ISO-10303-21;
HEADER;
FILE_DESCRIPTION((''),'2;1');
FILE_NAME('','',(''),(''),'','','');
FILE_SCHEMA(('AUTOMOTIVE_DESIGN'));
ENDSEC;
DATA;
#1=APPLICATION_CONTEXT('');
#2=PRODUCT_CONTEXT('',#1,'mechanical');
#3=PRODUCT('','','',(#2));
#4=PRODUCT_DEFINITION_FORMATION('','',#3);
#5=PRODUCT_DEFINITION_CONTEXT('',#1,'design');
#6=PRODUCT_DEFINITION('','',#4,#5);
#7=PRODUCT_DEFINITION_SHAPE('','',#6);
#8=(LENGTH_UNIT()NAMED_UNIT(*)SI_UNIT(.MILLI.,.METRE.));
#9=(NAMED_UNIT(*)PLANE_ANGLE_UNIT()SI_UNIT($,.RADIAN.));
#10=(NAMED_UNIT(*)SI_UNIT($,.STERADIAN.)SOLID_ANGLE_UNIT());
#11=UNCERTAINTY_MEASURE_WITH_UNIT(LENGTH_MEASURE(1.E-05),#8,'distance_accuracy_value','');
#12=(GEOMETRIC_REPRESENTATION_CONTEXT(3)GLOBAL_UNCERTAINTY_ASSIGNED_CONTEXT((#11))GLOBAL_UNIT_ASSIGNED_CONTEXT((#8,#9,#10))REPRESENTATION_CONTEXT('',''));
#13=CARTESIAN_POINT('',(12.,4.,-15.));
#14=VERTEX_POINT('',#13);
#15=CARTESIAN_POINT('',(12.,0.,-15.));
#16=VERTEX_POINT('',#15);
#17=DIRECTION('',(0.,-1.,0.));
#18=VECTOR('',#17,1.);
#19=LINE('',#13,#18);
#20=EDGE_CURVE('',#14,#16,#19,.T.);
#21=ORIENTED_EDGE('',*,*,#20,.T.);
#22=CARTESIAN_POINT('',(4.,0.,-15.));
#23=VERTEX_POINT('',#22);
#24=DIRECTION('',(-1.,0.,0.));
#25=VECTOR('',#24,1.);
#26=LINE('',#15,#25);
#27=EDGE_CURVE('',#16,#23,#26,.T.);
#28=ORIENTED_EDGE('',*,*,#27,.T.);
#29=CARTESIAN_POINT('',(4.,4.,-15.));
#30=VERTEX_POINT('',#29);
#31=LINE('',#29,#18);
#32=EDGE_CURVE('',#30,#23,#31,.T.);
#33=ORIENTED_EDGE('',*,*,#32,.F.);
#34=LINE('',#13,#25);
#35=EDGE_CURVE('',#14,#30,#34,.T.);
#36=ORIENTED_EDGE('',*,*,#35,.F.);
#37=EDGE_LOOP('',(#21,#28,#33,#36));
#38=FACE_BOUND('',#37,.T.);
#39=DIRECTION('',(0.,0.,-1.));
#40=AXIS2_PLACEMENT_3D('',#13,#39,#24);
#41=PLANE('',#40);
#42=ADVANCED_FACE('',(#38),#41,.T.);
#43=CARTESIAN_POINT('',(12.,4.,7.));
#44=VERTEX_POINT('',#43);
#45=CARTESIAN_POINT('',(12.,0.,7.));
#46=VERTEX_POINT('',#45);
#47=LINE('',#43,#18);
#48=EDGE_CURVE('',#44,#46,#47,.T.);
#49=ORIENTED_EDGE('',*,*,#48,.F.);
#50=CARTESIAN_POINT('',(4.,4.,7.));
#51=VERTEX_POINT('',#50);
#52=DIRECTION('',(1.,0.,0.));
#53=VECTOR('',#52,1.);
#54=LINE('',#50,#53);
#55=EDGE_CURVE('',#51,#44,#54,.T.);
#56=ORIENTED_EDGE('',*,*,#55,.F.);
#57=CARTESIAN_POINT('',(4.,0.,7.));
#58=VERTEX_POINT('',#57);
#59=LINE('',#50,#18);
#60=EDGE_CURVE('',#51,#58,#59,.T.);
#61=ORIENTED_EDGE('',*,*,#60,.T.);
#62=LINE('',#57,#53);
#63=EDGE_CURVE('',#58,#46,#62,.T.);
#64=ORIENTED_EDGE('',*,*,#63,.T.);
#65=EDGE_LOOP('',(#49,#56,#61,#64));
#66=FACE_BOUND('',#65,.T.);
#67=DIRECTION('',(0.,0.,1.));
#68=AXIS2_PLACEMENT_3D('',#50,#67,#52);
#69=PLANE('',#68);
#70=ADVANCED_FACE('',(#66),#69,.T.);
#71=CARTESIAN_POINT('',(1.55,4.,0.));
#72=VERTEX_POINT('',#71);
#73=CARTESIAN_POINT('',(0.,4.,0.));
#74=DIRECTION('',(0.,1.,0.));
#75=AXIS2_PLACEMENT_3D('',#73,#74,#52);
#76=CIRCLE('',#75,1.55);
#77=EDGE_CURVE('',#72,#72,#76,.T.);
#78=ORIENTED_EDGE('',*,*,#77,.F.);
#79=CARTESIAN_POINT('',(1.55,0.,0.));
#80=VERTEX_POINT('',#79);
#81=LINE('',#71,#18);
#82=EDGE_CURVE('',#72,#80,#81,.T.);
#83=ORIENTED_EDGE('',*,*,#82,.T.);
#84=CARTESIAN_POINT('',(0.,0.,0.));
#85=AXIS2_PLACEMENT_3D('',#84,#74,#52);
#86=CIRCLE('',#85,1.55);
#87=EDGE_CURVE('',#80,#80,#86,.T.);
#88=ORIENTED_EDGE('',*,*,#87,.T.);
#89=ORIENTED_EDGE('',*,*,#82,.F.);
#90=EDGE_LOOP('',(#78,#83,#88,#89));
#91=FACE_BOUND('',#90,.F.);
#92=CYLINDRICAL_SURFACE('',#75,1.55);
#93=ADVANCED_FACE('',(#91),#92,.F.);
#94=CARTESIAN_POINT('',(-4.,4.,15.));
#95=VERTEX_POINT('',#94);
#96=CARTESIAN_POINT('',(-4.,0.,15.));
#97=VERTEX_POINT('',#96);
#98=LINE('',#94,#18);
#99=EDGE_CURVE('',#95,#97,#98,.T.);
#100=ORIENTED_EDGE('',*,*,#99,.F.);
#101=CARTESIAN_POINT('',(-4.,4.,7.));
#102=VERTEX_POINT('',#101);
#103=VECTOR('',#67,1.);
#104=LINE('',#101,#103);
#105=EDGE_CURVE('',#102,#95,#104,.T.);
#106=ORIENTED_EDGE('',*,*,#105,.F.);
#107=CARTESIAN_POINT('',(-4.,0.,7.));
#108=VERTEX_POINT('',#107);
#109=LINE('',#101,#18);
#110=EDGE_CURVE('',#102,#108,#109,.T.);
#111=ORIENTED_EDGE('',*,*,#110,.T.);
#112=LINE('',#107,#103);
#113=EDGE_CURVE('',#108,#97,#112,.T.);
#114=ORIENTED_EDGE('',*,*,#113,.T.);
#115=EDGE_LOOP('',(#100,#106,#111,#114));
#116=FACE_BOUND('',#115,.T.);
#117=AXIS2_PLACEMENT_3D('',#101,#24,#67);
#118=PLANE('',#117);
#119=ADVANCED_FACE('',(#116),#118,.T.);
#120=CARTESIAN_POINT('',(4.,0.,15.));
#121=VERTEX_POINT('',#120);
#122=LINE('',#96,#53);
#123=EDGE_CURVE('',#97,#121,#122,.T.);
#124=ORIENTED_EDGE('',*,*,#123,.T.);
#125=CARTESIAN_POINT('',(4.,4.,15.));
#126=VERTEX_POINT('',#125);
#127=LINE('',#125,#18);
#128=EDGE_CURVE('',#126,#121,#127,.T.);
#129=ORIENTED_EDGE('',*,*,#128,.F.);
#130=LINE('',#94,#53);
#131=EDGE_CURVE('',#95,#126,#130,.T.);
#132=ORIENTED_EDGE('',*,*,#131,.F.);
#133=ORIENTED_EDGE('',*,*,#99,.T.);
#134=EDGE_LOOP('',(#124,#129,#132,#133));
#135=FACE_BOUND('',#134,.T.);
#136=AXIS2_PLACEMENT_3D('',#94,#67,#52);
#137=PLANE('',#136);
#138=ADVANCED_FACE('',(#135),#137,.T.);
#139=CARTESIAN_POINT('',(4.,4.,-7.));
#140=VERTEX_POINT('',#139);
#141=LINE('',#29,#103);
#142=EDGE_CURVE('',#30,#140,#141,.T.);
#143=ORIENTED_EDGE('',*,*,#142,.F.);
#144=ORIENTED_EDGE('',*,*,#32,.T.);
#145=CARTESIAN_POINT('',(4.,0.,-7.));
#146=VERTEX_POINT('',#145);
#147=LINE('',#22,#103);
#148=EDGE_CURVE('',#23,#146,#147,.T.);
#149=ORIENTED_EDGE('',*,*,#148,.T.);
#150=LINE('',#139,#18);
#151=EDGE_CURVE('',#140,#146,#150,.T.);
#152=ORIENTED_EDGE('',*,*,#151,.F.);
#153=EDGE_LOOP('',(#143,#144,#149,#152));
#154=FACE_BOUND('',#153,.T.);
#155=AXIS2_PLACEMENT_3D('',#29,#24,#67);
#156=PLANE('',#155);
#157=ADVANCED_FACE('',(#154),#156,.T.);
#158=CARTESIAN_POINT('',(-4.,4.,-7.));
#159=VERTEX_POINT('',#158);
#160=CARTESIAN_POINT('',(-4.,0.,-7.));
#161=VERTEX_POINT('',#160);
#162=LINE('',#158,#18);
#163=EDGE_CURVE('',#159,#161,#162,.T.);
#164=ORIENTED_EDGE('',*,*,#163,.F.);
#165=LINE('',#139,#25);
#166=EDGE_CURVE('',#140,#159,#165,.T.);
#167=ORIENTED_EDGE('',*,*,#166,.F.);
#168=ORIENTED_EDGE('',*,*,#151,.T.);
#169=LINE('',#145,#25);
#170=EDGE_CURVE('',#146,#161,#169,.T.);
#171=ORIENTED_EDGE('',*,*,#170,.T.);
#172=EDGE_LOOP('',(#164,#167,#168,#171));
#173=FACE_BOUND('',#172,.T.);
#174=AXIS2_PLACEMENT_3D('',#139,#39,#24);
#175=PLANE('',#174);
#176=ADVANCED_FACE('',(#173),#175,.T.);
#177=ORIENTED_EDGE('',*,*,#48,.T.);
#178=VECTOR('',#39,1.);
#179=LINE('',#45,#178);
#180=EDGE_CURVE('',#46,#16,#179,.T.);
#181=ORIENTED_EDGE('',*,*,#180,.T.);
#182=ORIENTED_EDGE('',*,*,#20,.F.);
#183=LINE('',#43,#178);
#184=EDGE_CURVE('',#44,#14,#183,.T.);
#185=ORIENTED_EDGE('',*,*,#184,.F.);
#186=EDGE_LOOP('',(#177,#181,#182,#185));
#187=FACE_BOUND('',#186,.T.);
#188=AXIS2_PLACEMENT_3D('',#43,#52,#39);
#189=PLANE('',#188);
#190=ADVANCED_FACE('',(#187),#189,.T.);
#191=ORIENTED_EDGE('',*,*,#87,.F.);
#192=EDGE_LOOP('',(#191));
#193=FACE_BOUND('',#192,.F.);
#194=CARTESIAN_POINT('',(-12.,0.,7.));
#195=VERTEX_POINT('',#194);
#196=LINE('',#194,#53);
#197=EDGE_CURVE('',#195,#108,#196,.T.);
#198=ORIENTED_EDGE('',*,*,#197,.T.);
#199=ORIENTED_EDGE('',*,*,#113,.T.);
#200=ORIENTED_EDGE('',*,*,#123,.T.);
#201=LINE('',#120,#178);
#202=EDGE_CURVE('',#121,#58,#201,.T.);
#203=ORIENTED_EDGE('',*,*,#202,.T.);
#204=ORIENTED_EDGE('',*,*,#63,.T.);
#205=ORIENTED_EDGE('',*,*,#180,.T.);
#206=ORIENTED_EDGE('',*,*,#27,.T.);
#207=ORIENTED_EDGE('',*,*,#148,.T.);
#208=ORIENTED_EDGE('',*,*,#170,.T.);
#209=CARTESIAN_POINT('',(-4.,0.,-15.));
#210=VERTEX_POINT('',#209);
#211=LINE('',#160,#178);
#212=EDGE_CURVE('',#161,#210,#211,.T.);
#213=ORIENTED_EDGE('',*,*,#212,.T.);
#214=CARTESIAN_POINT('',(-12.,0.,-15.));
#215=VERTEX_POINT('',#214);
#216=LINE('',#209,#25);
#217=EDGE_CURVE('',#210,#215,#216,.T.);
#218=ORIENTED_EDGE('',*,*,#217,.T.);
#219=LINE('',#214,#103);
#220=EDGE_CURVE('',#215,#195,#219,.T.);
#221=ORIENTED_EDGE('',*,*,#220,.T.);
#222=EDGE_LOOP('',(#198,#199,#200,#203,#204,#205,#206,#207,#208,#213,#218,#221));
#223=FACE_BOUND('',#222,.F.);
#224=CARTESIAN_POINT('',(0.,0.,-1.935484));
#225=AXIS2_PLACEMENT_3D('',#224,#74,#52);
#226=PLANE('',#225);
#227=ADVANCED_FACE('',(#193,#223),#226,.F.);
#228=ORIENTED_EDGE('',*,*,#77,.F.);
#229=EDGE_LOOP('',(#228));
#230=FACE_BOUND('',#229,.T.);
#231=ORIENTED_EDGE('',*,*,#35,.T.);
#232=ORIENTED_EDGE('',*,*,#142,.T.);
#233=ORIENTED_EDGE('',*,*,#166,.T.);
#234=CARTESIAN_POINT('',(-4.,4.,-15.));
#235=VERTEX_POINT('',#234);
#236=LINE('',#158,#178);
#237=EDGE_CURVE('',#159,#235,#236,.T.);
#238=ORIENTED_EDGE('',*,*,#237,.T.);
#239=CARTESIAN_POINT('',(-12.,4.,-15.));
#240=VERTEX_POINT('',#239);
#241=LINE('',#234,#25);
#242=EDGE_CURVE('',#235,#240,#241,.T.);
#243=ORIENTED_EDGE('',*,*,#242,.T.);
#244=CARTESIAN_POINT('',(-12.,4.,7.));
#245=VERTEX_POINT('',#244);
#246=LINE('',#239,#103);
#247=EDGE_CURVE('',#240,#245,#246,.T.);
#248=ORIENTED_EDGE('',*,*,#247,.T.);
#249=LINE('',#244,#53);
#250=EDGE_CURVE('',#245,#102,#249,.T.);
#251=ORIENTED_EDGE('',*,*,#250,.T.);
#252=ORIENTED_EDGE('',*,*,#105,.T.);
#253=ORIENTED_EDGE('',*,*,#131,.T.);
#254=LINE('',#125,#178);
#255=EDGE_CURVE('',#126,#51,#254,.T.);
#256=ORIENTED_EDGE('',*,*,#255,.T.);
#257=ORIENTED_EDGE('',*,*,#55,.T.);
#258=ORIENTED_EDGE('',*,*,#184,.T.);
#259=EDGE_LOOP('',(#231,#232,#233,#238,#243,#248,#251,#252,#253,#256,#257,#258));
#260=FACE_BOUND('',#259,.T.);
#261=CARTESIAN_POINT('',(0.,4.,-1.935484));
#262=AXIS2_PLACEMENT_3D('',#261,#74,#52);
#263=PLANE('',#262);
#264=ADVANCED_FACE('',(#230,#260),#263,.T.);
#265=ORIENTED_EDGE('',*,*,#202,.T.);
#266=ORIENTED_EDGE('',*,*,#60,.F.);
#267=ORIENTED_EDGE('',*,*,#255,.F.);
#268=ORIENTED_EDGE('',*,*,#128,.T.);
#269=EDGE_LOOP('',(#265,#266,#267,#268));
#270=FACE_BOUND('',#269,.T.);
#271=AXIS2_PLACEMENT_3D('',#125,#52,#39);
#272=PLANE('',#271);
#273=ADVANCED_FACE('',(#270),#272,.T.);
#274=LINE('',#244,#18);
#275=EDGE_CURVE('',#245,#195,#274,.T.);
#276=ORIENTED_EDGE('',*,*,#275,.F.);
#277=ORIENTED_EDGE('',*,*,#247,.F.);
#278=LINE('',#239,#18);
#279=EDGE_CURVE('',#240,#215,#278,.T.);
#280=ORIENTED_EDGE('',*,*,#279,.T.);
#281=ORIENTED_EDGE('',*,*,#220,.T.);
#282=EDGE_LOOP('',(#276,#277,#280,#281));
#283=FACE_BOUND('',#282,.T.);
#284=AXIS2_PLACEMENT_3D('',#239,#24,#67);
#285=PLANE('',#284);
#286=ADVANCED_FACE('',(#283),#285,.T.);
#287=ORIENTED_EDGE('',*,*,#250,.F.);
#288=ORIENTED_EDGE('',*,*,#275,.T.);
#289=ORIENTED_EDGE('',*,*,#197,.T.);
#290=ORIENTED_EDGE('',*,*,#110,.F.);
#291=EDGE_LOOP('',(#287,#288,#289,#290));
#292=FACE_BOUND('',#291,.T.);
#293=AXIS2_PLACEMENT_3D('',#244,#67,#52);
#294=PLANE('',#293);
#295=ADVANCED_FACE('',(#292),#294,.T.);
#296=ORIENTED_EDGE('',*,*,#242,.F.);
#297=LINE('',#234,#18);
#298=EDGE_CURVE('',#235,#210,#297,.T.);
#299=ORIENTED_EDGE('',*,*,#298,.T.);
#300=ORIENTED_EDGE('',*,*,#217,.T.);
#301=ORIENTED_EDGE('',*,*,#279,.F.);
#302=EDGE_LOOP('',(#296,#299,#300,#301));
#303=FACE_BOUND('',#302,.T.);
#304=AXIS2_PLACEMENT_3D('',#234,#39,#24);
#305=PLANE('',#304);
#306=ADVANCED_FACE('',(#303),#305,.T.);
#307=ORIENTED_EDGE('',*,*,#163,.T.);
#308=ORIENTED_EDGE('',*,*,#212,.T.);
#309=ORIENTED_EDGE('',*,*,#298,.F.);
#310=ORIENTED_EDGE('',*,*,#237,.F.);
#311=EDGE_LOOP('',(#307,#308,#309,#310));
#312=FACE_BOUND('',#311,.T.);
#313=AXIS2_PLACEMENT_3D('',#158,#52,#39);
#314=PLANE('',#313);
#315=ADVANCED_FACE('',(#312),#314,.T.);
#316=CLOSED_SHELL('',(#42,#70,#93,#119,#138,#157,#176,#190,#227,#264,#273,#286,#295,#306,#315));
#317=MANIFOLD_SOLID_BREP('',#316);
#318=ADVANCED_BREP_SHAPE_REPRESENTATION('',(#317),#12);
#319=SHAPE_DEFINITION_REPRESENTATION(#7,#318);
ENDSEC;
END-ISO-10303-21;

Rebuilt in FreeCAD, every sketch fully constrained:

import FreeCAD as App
import Part
import Sketcher
Q = App.Units.Quantity

doc = App.newDocument("Part")
body = doc.addObject("PartDesign::Body", "Body")

sketch1 = body.newObject("Sketcher::SketchObject", "Sketch")
sketch1.AttachmentSupport = (doc.getObject("XZ_Plane"), [""])
sketch1.MapMode = "FlatFace"
sketch1.AttachmentOffset = App.Placement(App.Vector(0, 0, -4), App.Rotation())
sketch1.addGeometry([
    Part.LineSegment(App.Vector(-4, -7, 0), App.Vector(-4, -15, 0)),
    Part.LineSegment(App.Vector(-4, -15, 0), App.Vector(-12, -15, 0)),
    Part.LineSegment(App.Vector(-12, -15, 0), App.Vector(-12, 7, 0)),
    Part.LineSegment(App.Vector(-12, 7, 0), App.Vector(-4, 7, 0)),
    Part.LineSegment(App.Vector(-4, 7, 0), App.Vector(-4, 15, 0)),
    Part.LineSegment(App.Vector(-4, 15, 0), App.Vector(4, 15, 0)),
    Part.LineSegment(App.Vector(4, 15, 0), App.Vector(4, 7, 0)),
    Part.LineSegment(App.Vector(4, 7, 0), App.Vector(12, 7, 0)),
    Part.LineSegment(App.Vector(12, 7, 0), App.Vector(12, -15, 0)),
    Part.LineSegment(App.Vector(12, -15, 0), App.Vector(4, -15, 0)),
    Part.LineSegment(App.Vector(4, -15, 0), App.Vector(4, -7, 0)),
    Part.LineSegment(App.Vector(4, -7, 0), App.Vector(-4, -7, 0)),
    Part.Circle(App.Vector(0, 0, 0), App.Vector(0, 0, 1), 1.6),
], False)
sketch1.addConstraint([
    Sketcher.Constraint("Coincident", 0, 2, 1, 1),
    Sketcher.Constraint("Coincident", 1, 2, 2, 1),
    Sketcher.Constraint("Coincident", 2, 2, 3, 1),
    Sketcher.Constraint("Coincident", 3, 2, 4, 1),
    Sketcher.Constraint("Coincident", 4, 2, 5, 1),
    Sketcher.Constraint("Coincident", 5, 2, 6, 1),
    Sketcher.Constraint("Coincident", 6, 2, 7, 1),
    Sketcher.Constraint("Coincident", 7, 2, 8, 1),
    Sketcher.Constraint("Coincident", 8, 2, 9, 1),
    Sketcher.Constraint("Coincident", 9, 2, 10, 1),
    Sketcher.Constraint("Coincident", 10, 2, 11, 1),
    Sketcher.Constraint("Coincident", 11, 2, 0, 1),
    Sketcher.Constraint("Vertical", 0),
    Sketcher.Constraint("Horizontal", 1),
    Sketcher.Constraint("Vertical", 2),
    Sketcher.Constraint("Horizontal", 3),
    Sketcher.Constraint("Vertical", 4),
    Sketcher.Constraint("Horizontal", 5),
    Sketcher.Constraint("Vertical", 6),
    Sketcher.Constraint("Horizontal", 7),
    Sketcher.Constraint("Vertical", 8),
    Sketcher.Constraint("Horizontal", 9),
    Sketcher.Constraint("Vertical", 10),
    Sketcher.Constraint("Horizontal", 11),
    Sketcher.Constraint("Coincident", 12, 3, -1, 1),
    Sketcher.Constraint("Symmetric", 0, 2, 5, 2, -1, 1),
    Sketcher.Constraint("Symmetric", 4, 2, 9, 2, -1, 1),
    Sketcher.Constraint("Symmetric", 3, 2, 6, 2, -2),
    Sketcher.Constraint("Equal", 3, 5),
    Sketcher.Constraint("Equal", 5, 7),
    Sketcher.Constraint("Equal", 11, 0),
    Sketcher.Constraint("Equal", 0, 4),
    Sketcher.Constraint("Diameter", 12, Q("3.1 mm")),
    Sketcher.Constraint("DistanceX", 1, 2, 1, 1, Q("8 mm")),
    Sketcher.Constraint("DistanceY", 2, 1, 2, 2, Q("22 mm")),
])
pad1 = body.newObject("PartDesign::Pad", "Pad")
pad1.Profile = sketch1
pad1.Length = 4

doc.recompute()
